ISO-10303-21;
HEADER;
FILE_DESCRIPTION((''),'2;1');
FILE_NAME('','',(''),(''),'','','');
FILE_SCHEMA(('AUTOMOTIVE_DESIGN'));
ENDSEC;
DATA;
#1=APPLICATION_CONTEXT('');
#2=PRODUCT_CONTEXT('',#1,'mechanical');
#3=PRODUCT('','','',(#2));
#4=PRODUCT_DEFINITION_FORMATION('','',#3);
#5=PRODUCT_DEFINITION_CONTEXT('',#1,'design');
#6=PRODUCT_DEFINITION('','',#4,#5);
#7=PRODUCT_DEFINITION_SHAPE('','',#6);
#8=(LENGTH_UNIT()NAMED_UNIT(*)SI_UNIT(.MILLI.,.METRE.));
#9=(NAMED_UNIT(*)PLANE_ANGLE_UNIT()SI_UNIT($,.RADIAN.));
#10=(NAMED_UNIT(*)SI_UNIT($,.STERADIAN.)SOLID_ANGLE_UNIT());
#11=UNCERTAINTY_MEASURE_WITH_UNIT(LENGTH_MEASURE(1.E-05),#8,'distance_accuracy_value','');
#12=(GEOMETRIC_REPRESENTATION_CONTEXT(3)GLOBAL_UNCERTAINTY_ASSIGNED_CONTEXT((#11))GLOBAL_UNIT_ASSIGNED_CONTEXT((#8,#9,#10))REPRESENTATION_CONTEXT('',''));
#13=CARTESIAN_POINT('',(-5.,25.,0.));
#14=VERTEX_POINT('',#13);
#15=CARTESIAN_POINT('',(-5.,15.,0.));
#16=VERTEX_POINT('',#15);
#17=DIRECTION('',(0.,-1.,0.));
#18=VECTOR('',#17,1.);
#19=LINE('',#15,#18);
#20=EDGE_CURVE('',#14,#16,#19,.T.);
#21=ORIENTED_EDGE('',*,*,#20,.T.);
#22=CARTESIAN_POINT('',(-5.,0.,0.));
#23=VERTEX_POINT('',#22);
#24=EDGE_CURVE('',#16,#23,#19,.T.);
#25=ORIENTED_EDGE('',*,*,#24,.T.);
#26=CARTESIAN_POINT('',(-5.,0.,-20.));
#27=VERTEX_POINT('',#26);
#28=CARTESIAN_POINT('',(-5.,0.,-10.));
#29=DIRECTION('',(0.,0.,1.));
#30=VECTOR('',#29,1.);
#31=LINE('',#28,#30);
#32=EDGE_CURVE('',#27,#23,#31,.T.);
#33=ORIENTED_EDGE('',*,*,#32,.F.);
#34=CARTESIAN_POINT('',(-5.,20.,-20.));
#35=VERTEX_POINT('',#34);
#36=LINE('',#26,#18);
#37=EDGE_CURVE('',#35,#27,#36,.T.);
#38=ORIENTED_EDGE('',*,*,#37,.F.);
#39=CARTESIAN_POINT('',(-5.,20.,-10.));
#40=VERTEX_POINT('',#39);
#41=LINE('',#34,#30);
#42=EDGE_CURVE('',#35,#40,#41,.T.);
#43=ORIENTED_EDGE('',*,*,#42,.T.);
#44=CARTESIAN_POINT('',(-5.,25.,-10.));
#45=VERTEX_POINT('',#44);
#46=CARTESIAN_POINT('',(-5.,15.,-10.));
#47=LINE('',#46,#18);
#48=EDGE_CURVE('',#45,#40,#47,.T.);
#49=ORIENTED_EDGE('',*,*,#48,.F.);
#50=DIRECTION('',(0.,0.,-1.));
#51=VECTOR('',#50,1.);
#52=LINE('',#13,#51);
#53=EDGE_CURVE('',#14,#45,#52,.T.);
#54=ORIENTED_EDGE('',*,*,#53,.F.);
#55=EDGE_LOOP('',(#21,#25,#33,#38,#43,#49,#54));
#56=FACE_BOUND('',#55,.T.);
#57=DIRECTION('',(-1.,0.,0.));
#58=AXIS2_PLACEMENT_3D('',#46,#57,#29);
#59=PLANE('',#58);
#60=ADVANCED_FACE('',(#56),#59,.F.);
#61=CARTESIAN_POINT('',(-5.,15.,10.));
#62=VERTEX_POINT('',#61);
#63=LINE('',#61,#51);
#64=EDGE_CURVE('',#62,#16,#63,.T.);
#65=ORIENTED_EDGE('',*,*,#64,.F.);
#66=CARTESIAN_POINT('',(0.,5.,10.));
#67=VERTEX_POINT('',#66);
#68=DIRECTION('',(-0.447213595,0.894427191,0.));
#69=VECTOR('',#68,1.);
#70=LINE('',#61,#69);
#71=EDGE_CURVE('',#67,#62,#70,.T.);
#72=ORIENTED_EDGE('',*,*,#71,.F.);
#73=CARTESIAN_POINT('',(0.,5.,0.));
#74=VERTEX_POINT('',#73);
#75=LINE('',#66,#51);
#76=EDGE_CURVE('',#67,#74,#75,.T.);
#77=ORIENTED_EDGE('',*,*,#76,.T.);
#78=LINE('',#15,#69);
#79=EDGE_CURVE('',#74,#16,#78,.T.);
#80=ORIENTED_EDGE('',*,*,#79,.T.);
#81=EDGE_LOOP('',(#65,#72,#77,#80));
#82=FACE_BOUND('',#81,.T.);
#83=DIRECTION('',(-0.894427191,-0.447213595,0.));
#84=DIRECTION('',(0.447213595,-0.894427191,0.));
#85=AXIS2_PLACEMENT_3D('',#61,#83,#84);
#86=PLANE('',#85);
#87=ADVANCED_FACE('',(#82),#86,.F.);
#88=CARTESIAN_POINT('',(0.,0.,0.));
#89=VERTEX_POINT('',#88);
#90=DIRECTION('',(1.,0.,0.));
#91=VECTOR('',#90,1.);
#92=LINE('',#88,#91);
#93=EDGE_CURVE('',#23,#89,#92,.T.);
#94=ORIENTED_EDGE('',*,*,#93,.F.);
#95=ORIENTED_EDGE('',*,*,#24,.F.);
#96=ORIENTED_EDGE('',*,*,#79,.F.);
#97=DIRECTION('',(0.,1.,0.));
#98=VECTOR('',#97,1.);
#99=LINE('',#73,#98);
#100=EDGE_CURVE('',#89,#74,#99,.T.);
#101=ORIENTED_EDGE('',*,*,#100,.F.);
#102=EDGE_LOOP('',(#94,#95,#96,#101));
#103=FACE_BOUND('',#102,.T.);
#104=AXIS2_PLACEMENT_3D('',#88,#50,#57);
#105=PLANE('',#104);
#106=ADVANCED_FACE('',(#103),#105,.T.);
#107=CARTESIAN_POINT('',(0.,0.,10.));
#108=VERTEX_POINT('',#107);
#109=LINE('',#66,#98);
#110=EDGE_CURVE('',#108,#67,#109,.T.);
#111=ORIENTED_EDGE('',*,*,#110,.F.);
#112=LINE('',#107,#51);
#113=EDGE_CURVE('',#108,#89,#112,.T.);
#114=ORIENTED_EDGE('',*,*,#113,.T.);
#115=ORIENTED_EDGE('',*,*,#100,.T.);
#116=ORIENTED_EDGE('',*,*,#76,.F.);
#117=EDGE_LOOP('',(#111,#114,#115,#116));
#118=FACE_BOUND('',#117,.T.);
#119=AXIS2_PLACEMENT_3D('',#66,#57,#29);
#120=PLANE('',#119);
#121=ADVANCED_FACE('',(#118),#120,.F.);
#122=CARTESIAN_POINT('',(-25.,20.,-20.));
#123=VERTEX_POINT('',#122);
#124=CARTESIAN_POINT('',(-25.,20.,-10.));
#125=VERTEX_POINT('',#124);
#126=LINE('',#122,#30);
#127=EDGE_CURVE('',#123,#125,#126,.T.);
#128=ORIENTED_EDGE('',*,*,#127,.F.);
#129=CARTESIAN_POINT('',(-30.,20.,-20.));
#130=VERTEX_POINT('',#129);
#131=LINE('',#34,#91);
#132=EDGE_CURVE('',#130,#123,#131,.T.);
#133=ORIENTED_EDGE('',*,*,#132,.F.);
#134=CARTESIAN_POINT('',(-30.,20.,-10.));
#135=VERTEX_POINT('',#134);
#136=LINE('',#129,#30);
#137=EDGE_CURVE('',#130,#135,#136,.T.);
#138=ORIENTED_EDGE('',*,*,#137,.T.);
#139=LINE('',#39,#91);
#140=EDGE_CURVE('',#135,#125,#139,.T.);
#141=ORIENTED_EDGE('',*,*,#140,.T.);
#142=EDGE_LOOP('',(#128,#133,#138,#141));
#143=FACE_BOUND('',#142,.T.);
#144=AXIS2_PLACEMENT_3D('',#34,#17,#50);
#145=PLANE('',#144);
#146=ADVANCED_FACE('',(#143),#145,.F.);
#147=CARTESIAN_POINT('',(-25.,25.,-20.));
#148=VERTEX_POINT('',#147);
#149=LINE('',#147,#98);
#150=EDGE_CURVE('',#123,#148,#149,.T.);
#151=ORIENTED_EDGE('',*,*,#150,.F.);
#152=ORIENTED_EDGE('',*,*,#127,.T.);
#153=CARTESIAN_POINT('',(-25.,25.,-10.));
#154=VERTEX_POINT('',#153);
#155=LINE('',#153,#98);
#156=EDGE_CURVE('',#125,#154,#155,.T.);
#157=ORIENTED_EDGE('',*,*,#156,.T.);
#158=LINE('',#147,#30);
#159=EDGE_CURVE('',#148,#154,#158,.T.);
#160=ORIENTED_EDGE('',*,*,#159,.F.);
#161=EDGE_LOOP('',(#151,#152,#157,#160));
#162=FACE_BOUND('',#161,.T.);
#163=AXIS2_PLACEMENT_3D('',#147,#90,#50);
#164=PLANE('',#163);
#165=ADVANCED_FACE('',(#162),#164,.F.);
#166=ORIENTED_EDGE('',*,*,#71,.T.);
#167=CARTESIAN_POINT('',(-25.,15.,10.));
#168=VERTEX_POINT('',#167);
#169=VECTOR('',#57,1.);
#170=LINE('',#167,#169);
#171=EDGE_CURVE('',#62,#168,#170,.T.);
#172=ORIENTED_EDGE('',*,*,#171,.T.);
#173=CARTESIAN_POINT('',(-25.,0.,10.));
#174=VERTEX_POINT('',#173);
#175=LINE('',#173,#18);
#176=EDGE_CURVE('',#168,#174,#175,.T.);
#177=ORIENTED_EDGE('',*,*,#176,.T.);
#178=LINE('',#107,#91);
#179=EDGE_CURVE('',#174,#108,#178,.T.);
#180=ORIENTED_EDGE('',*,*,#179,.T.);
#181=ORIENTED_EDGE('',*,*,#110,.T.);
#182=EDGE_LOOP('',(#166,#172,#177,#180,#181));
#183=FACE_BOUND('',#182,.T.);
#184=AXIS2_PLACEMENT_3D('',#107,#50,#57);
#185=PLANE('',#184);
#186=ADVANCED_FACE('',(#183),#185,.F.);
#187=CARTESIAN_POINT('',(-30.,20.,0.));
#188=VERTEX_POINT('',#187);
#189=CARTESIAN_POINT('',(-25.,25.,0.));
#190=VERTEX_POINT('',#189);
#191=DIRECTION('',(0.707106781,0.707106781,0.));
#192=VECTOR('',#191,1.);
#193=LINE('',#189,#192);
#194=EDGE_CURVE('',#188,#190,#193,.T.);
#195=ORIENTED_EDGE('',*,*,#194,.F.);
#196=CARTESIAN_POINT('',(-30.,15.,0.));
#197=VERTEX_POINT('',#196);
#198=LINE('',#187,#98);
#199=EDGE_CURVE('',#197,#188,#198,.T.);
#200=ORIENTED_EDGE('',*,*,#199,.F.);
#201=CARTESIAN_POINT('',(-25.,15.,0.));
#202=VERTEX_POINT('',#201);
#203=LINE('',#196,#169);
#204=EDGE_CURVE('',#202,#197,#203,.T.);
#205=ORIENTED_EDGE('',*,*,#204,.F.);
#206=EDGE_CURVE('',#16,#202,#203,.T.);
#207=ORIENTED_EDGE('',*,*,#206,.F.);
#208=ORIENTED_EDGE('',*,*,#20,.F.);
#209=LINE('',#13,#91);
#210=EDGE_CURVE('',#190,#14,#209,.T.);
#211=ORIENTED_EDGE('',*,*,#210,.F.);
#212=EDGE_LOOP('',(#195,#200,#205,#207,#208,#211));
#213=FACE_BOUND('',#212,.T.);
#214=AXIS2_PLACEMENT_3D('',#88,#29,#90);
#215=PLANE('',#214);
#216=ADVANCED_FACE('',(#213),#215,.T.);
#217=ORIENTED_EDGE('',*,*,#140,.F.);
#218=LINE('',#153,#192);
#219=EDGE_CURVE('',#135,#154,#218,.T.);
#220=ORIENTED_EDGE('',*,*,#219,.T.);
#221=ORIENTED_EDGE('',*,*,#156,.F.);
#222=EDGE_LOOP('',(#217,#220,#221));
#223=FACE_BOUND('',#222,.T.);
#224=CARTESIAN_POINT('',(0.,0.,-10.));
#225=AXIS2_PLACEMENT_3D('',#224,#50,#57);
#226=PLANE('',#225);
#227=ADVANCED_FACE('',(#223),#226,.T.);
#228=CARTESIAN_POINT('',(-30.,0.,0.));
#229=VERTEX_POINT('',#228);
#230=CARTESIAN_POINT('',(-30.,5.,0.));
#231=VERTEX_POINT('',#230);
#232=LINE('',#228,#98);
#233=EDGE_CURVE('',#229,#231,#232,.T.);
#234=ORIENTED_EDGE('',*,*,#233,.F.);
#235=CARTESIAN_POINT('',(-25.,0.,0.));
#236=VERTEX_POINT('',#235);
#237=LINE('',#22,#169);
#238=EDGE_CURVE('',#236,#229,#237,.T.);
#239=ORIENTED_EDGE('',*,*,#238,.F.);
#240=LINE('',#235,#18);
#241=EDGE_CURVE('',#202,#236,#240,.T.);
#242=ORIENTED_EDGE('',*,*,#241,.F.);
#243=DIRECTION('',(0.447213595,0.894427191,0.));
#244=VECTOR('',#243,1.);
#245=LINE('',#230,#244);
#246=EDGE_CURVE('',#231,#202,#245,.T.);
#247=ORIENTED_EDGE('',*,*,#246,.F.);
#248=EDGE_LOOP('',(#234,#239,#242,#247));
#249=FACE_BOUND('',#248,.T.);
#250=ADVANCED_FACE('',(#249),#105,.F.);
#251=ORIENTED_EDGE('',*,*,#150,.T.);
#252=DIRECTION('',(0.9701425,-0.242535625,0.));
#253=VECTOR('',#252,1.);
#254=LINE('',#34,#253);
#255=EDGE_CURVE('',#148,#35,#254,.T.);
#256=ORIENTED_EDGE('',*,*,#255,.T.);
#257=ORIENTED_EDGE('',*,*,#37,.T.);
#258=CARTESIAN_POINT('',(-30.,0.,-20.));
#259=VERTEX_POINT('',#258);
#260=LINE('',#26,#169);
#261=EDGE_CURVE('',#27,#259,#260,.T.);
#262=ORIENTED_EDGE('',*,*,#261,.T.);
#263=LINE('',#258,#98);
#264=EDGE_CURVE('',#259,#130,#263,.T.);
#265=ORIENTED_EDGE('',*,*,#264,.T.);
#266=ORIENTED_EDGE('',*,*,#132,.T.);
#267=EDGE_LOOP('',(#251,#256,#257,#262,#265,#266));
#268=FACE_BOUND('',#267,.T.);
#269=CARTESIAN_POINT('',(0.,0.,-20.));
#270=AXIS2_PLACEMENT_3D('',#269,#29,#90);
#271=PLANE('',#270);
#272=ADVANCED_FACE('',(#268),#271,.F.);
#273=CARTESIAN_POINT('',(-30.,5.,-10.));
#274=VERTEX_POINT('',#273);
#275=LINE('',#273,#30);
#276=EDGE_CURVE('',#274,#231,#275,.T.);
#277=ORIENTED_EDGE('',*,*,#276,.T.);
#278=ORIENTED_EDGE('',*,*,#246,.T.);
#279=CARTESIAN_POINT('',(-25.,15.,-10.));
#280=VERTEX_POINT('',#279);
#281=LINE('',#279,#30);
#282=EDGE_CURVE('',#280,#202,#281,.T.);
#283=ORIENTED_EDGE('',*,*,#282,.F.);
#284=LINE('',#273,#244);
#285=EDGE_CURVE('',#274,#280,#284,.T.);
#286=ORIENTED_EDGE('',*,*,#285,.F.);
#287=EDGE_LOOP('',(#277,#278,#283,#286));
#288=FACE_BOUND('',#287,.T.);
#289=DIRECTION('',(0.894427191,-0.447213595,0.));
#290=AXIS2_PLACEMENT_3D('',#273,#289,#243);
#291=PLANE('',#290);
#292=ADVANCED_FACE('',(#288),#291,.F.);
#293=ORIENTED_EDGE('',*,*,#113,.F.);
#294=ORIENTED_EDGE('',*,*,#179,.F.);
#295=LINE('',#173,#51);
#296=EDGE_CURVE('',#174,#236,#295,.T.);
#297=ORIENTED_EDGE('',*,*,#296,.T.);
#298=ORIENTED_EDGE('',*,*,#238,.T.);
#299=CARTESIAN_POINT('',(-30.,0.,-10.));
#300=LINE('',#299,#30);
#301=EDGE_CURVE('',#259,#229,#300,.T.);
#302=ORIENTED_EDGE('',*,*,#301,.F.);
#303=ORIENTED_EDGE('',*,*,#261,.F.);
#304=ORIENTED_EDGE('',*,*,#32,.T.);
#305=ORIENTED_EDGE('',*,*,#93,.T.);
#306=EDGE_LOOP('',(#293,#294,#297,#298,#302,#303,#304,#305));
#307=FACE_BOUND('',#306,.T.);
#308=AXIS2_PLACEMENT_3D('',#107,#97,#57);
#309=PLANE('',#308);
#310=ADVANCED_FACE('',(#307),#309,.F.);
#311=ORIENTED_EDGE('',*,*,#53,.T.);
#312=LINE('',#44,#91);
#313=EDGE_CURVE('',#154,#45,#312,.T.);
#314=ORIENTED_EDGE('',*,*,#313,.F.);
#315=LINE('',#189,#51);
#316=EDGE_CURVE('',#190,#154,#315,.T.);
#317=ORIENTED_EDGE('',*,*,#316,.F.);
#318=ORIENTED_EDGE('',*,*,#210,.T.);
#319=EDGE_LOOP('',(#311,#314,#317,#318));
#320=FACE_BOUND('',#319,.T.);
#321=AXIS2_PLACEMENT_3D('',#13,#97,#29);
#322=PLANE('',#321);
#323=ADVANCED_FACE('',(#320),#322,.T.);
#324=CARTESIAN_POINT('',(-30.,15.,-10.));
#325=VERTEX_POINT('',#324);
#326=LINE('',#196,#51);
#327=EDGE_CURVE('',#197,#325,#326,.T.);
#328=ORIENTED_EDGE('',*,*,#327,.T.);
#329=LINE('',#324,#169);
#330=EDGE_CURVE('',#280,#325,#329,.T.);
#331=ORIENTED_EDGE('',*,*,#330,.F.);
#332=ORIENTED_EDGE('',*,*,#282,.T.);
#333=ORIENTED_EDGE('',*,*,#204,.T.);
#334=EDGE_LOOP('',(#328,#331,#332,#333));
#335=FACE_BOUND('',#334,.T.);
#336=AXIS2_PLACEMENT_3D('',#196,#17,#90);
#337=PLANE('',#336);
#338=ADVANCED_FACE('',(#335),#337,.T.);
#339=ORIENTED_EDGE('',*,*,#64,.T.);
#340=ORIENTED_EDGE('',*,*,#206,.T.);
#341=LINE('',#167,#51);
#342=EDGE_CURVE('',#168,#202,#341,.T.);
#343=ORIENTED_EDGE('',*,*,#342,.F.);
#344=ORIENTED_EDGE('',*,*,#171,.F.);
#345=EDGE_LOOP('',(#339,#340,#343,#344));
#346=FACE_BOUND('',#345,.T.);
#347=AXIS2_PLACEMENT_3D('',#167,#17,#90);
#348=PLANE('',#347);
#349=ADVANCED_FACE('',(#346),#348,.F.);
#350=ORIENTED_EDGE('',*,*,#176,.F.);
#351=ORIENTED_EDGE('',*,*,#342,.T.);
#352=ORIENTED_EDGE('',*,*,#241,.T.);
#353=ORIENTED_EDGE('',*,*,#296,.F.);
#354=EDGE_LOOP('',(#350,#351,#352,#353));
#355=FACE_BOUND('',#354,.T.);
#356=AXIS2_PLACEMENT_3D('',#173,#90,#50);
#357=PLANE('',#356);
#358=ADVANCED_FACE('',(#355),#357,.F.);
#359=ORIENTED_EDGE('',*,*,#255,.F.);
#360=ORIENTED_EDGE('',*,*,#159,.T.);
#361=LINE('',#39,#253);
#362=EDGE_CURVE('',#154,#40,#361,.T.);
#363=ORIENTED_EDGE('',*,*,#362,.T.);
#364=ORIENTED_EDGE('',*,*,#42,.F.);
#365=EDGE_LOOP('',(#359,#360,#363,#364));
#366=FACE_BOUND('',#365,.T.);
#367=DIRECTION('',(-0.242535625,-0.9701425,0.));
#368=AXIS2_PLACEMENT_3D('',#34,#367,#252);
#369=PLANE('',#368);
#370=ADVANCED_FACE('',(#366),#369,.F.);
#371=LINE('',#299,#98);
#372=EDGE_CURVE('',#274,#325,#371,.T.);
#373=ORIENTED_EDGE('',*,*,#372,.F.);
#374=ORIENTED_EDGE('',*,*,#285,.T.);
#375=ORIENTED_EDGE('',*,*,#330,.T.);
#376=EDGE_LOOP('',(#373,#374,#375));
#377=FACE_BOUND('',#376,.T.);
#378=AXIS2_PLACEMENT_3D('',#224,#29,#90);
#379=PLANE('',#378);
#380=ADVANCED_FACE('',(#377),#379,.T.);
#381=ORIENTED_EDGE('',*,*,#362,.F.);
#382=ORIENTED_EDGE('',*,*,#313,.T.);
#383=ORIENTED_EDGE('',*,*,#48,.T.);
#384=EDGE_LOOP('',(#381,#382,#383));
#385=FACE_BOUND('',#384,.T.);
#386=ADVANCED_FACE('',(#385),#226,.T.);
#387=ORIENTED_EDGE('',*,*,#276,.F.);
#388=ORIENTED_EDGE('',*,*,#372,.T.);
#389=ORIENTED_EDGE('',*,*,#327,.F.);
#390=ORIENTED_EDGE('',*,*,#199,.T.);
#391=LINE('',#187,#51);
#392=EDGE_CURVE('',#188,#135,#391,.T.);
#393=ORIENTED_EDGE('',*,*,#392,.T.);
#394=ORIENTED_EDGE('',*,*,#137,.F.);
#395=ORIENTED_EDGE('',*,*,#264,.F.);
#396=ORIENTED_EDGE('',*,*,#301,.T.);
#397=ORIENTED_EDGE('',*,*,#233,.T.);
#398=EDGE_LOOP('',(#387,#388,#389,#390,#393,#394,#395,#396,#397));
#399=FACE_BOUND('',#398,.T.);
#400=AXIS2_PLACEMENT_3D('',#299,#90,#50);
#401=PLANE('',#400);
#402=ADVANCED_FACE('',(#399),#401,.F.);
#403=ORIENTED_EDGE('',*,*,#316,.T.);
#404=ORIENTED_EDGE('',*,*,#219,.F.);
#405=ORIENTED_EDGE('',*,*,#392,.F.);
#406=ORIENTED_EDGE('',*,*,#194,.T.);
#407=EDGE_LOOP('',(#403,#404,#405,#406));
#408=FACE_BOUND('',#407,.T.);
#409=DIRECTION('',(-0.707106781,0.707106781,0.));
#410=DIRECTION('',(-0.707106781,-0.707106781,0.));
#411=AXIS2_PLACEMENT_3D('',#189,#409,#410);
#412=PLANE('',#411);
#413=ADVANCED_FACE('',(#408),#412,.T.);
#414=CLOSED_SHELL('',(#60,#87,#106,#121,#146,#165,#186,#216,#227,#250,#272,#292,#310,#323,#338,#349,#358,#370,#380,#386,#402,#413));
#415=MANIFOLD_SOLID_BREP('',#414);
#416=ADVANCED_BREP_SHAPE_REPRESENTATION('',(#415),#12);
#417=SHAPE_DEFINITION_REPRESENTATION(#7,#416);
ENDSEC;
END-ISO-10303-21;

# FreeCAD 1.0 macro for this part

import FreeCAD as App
import Part
import Sketcher
from FreeCAD import Vector
Q = App.Units.Quantity


def add_polygon(sketch, points):
    """Adds a closed chain of lines whose ends are joined by coincident constraints."""
    first, n = sketch.GeometryCount, len(points)
    for a, b in zip(points, points[1:] + points[:1]):
        sketch.addGeometry(Part.LineSegment(App.Vector(*a, 0), App.Vector(*b, 0)), False)
    for i in range(n):
        sketch.addConstraint(Sketcher.Constraint("Coincident", first + i, 2, first + (i + 1) % n, 1))

doc = App.newDocument("Part")
params = doc.addObject("Spreadsheet::Sheet", "Params")
for row, (alias, value) in enumerate([
    ("sketch1_width", "25 mm"),
    ("sketch1_width2", "20 mm"),
    ("sketch1_height", "15 mm"),
    ("sketch1_height2", "5 mm"),
    ("pad1_length", "10 mm"),
    ("sketch2_width", "25 mm"),
    ("sketch2_width2", "20 mm"),
    ("sketch2_height", "15 mm"),
    ("sketch2_height2", "5 mm"),
    ("pad2_length", "10 mm"),
    ("sketch3_width", "25 mm"),
    ("sketch3_width2", "20 mm"),
    ("sketch3_height", "10 mm"),
    ("sketch3_height2", "5 mm"),
    ("pad3_length", "10 mm"),
    ("sketch4_width", "25 mm"),
    ("sketch4_height", "20 mm"),
    ("pad4_length", "10 mm"),
    ("sketch5_width", "20 mm"),
    ("sketch5_height", "5 mm"),
    ("pad5_length", "10 mm"),
], start=1):
    params.set(f"A{row}", alias)
    params.set(f"B{row}", "=" + value)
    params.setAlias(f"B{row}", alias)

body = doc.addObject("PartDesign::Body", "Body")

# Sketch on XY plane
sketch1 = body.newObject("Sketcher::SketchObject", "Sketch")
sketch1.AttachmentSupport = (doc.getObject("XY_Plane"), [""])
sketch1.MapMode = "FlatFace"
add_polygon(sketch1, [(-25, 15), (-25, 0), (0, 0), (0, 5), (-5, 15)])  # lines 0-4
sketch1.addConstraint([
    Sketcher.Constraint("Vertical", 0),
    Sketcher.Constraint("Horizontal", 1),
    Sketcher.Constraint("Vertical", 2),
    Sketcher.Constraint("Horizontal", 4),
    Sketcher.Constraint("Coincident", 1, 2, -1, 1),
    Sketcher.Constraint("DistanceX", 1, 1, 1, 2, Q("25 mm")),
    Sketcher.Constraint("DistanceX", 4, 2, 4, 1, Q("20 mm")),
    Sketcher.Constraint("DistanceY", 0, 2, 0, 1, Q("15 mm")),
    Sketcher.Constraint("DistanceY", 2, 1, 2, 2, Q("5 mm")),
])
sketch1.setExpression("Constraints[10]", "Params.sketch1_width")
sketch1.setExpression("Constraints[11]", "Params.sketch1_width2")
sketch1.setExpression("Constraints[12]", "Params.sketch1_height")
sketch1.setExpression("Constraints[13]", "Params.sketch1_height2")
pad1 = body.newObject("PartDesign::Pad", "Pad")
pad1.Profile = sketch1
pad1.setExpression("Length", "Params.pad1_length")

# Sketch on XY plane
sketch2 = body.newObject("Sketcher::SketchObject", "Sketch001")
sketch2.AttachmentSupport = (doc.getObject("XY_Plane"), [""])
sketch2.MapMode = "FlatFace"
add_polygon(sketch2, [(-5, 15), (-5, 0), (-30, 0), (-30, 5), (-25, 15)])  # lines 0-4
sketch2.addConstraint([
    Sketcher.Constraint("Vertical", 0),
    Sketcher.Constraint("Horizontal", 1),
    Sketcher.Constraint("Vertical", 2),
    Sketcher.Constraint("Horizontal", 4),
    Sketcher.Constraint("PointOnObject", 0, 2, -1),
    Sketcher.Constraint("DistanceX", 1, 2, 1, 1, Q("25 mm")),
    Sketcher.Constraint("DistanceX", 4, 1, 4, 2, Q("20 mm")),
    Sketcher.Constraint("DistanceY", 0, 2, 0, 1, Q("15 mm")),
    Sketcher.Constraint("DistanceY", 2, 1, 2, 2, Q("5 mm")),
    Sketcher.Constraint("DistanceX", 0, 2, -1, 1, Q("5 mm")),
])
sketch2.setExpression("Constraints[10]", "Params.sketch2_width")
sketch2.setExpression("Constraints[11]", "Params.sketch2_width2")
sketch2.setExpression("Constraints[12]", "Params.sketch2_height")
sketch2.setExpression("Constraints[13]", "Params.sketch2_height2")
pad2 = body.newObject("PartDesign::Pad", "Pad001")
pad2.Profile = sketch2
pad2.setExpression("Length", "Params.pad2_length")
pad2.Reversed = True

# Sketch on XY plane
sketch3 = body.newObject("Sketcher::SketchObject", "Sketch002")
sketch3.AttachmentSupport = (doc.getObject("XY_Plane"), [""])
sketch3.MapMode = "FlatFace"
sketch3.AttachmentOffset = App.Placement(Vector(0, 0, -10), App.Rotation())
add_polygon(sketch3, [(-5, 25), (-5, 15), (-30, 15), (-30, 20), (-25, 25)])  # lines 0-4
sketch3.addConstraint([
    Sketcher.Constraint("Vertical", 0),
    Sketcher.Constraint("Horizontal", 1),
    Sketcher.Constraint("Vertical", 2),
    Sketcher.Constraint("Horizontal", 4),
    Sketcher.Constraint("DistanceX", 1, 2, 1, 1, Q("25 mm")),
    Sketcher.Constraint("DistanceX", 4, 1, 4, 2, Q("20 mm")),
    Sketcher.Constraint("DistanceY", 0, 2, 0, 1, Q("10 mm")),
    Sketcher.Constraint("DistanceY", 2, 1, 2, 2, Q("5 mm")),
    Sketcher.Constraint("DistanceX", 0, 2, -1, 1, Q("5 mm")),
    Sketcher.Constraint("DistanceY", -1, 1, 0, 2, Q("15 mm")),
])
sketch3.setExpression("Constraints[9]", "Params.sketch3_width")
sketch3.setExpression("Constraints[10]", "Params.sketch3_width2")
sketch3.setExpression("Constraints[11]", "Params.sketch3_height")
sketch3.setExpression("Constraints[12]", "Params.sketch3_height2")
pad3 = body.newObject("PartDesign::Pad", "Pad002")
pad3.Profile = sketch3
pad3.setExpression("Length", "Params.pad3_length")

# Sketch on XY plane
sketch4 = body.newObject("Sketcher::SketchObject", "Sketch003")
sketch4.AttachmentSupport = (doc.getObject("XY_Plane"), [""])
sketch4.MapMode = "FlatFace"
sketch4.AttachmentOffset = App.Placement(Vector(0, 0, -10), App.Rotation())
add_polygon(sketch4, [(-5, 20), (-5, 0), (-30, 0), (-30, 20)])  # lines 0-3
sketch4.addConstraint([
    Sketcher.Constraint("Vertical", 0),
    Sketcher.Constraint("Horizontal", 1),
    Sketcher.Constraint("Vertical", 2),
    Sketcher.Constraint("Horizontal", 3),
    Sketcher.Constraint("PointOnObject", 0, 2, -1),
    Sketcher.Constraint("DistanceX", 1, 2, 1, 1, Q("25 mm")),
    Sketcher.Constraint("DistanceY", 0, 2, 0, 1, Q("20 mm")),
    Sketcher.Constraint("DistanceX", 0, 2, -1, 1, Q("5 mm")),
])
sketch4.setExpression("Constraints[9]", "Params.sketch4_width")
sketch4.setExpression("Constraints[10]", "Params.sketch4_height")
pad4 = body.newObject("PartDesign::Pad", "Pad003")
pad4.Profile = sketch4
pad4.setExpression("Length", "Params.pad4_length")
pad4.Reversed = True

# Sketch on XY plane
sketch5 = body.newObject("Sketcher::SketchObject", "Sketch004")
sketch5.AttachmentSupport = (doc.getObject("XY_Plane"), [""])
sketch5.MapMode = "FlatFace"
sketch5.AttachmentOffset = App.Placement(Vector(0, 0, -10), App.Rotation())
add_polygon(sketch5, [(-25, 25), (-5, 20), (-25, 20)])  # lines 0-2
sketch5.addConstraint([
    Sketcher.Constraint("Horizontal", 1),
    Sketcher.Constraint("Vertical", 2),
    Sketcher.Constraint("DistanceX", 1, 2, 1, 1, Q("20 mm")),
    Sketcher.Constraint("DistanceY", 2, 1, 2, 2, Q("5 mm")),
    Sketcher.Constraint("DistanceX", 0, 2, -1, 1, Q("5 mm")),
    Sketcher.Constraint("DistanceY", -1, 1, 0, 2, Q("20 mm")),
])
sketch5.setExpression("Constraints[5]", "Params.sketch5_width")
sketch5.setExpression("Constraints[6]", "Params.sketch5_height")
pad5 = body.newObject("PartDesign::Pad", "Pad004")
pad5.Profile = sketch5
pad5.setExpression("Length", "Params.pad5_length")
pad5.Reversed = True

doc.recompute()
